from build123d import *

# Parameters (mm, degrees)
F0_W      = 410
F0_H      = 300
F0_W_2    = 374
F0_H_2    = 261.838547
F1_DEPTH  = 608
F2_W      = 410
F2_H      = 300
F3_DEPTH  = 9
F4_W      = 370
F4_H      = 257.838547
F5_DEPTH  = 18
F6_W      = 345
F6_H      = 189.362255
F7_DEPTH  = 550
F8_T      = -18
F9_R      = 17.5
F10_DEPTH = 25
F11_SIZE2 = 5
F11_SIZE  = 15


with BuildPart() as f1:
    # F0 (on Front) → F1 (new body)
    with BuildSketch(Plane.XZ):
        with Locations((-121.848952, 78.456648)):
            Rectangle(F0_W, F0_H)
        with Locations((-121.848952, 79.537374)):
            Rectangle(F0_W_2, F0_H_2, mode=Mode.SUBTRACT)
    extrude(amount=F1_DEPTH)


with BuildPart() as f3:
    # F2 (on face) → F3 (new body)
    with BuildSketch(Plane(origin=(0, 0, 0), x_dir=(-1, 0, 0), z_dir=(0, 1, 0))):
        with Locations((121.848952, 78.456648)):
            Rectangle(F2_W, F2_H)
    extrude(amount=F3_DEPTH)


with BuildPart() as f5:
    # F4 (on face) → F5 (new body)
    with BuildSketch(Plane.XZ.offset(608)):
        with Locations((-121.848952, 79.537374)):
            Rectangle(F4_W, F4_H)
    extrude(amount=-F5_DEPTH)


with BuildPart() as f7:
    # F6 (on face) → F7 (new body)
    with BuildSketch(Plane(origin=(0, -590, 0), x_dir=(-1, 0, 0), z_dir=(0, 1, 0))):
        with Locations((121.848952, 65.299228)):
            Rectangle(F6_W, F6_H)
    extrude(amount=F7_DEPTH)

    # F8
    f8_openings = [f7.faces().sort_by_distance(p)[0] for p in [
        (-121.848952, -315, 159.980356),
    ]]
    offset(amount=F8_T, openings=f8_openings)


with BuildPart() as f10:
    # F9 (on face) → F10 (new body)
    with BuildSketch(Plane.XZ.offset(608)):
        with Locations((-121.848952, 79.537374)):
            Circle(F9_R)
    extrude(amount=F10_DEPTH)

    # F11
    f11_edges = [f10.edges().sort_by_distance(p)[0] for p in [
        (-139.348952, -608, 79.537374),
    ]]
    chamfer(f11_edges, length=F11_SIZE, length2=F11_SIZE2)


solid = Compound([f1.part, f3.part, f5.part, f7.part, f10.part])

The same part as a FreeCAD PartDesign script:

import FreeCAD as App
import Part
import Sketcher
from FreeCAD import Vector


def edges_at(feature, points):
    """Names of the edges that pass closest to the given points."""
    edges = feature.Shape.Edges
    near = lambda p: min(range(len(edges)), key=lambda i: edges[i].distToShape(Part.Vertex(*p))[0])
    return sorted({f"Edge{near(p) + 1}" for p in points})


def faces_at(feature, points):
    """Names of the faces that lie closest to the given points."""
    faces = feature.Shape.Faces
    near = lambda p: min(range(len(faces)), key=lambda i: faces[i].distToShape(Part.Vertex(*p))[0])
    return sorted({f"Face{near(p) + 1}" for p in points})

doc = App.newDocument("Part")
body = doc.addObject("PartDesign::Body", "Body")

# Sketch on XZ plane
sketch1 = body.newObject("Sketcher::SketchObject", "Sketch")
sketch1.AttachmentSupport = (doc.getObject("XZ_Plane"), [""])
sketch1.MapMode = "FlatFace"
sketch1.addGeometry([
    Part.LineSegment(Vector(-327, 228, 0), Vector(-327, -72, 0)),  # 0
    Part.LineSegment(Vector(-327, -72, 0), Vector(83, -72, 0)),  # 1
    Part.LineSegment(Vector(83, -72, 0), Vector(83, 228, 0)),  # 2
    Part.LineSegment(Vector(83, 228, 0), Vector(-327, 228, 0)),  # 3
    Part.LineSegment(Vector(65, -51, 0), Vector(-309, -51, 0)),  # 4
    Part.LineSegment(Vector(-309, -51, 0), Vector(-309, 210, 0)),  # 5
    Part.LineSegment(Vector(-309, 210, 0), Vector(65, 210, 0)),  # 6
    Part.LineSegment(Vector(65, 210, 0), Vector(65, -51, 0)),  # 7
], False)
sketch1.addConstraint([
    Sketcher.Constraint("Coincident", 0, 2, 1, 1),
    Sketcher.Constraint("Coincident", 1, 2, 2, 1),
    Sketcher.Constraint("Coincident", 2, 2, 3, 1),
    Sketcher.Constraint("Coincident", 3, 2, 0, 1),
    Sketcher.Constraint("Coincident", 4, 2, 5, 1),
    Sketcher.Constraint("Coincident", 5, 2, 6, 1),
    Sketcher.Constraint("Coincident", 6, 2, 7, 1),
    Sketcher.Constraint("Coincident", 7, 2, 4, 1),
    Sketcher.Constraint("Vertical", 0),
    Sketcher.Constraint("Horizontal", 1),
    Sketcher.Constraint("Vertical", 2),
    Sketcher.Constraint("Horizontal", 3),
    Sketcher.Constraint("Horizontal", 4),
    Sketcher.Constraint("Vertical", 5),
    Sketcher.Constraint("Horizontal", 6),
    Sketcher.Constraint("Vertical", 7),
    Sketcher.Constraint("DistanceX", 1, 1, 1, 2, 410.0),
    Sketcher.Constraint("DistanceX", 4, 2, 4, 1, 374.0),
    Sketcher.Constraint("DistanceY", 0, 2, 0, 1, 300.0),
    Sketcher.Constraint("DistanceX", 0, 2, 4, 2, 18.0),
    Sketcher.Constraint("DistanceY", 5, 2, 3, 2, 18.0),
    Sketcher.Constraint("DistanceY", 4, 2, -1, 1, 51.3819),
    Sketcher.Constraint("DistanceY", 5, 1, 5, 2, 261.838547),
    Sketcher.Constraint("DistanceX", 0, 2, -1, 1, 326.848952),
])
pad1 = body.newObject("PartDesign::Pad", "Pad")
pad1.Profile = sketch1
pad1.Length = 608
body2 = doc.addObject("PartDesign::Body", "Body001")

# Sketch on XZ plane
sketch2 = body2.newObject("Sketcher::SketchObject", "Sketch001")
sketch2.AttachmentSupport = (doc.getObject("XZ_Plane001"), [""])
sketch2.MapMode = "FlatFace"
sketch2.addGeometry([
    Part.LineSegment(Vector(83, 228, 0), Vector(83, -72, 0)),
    Part.LineSegment(Vector(83, -72, 0), Vector(-327, -72, 0)),
    Part.LineSegment(Vector(-327, -72, 0), Vector(-327, 228, 0)),
    Part.LineSegment(Vector(-327, 228, 0), Vector(83, 228, 0)),
], False)
sketch2.addConstraint([
    Sketcher.Constraint("Coincident", 0, 2, 1, 1),
    Sketcher.Constraint("Coincident", 1, 2, 2, 1),
    Sketcher.Constraint("Coincident", 2, 2, 3, 1),
    Sketcher.Constraint("Coincident", 3, 2, 0, 1),
    Sketcher.Constraint("Vertical", 0),
    Sketcher.Constraint("Horizontal", 1),
    Sketcher.Constraint("Vertical", 2),
    Sketcher.Constraint("Horizontal", 3),
    Sketcher.Constraint("DistanceX", 1, 2, 1, 1, 410.0),
    Sketcher.Constraint("DistanceY", 0, 2, 0, 1, 300.0),
    Sketcher.Constraint("DistanceX", -1, 1, 0, 2, 83.151048),
    Sketcher.Constraint("DistanceY", 0, 2, -1, 1, 71.543352),
])
pad2 = body2.newObject("PartDesign::Pad", "Pad001")
pad2.Profile = sketch2
pad2.Length = 9
pad2.Reversed = True
body3 = doc.addObject("PartDesign::Body", "Body002")

# Sketch on XZ plane
sketch3 = body3.newObject("Sketcher::SketchObject", "Sketch002")
sketch3.AttachmentSupport = (doc.getObject("XZ_Plane002"), [""])
sketch3.MapMode = "FlatFace"
sketch3.AttachmentOffset = App.Placement(Vector(0, 0, 608), App.Rotation())
sketch3.addGeometry([
    Part.LineSegment(Vector(-307, 208, 0), Vector(-307, -49, 0)),
    Part.LineSegment(Vector(-307, -49, 0), Vector(63, -49, 0)),
    Part.LineSegment(Vector(63, -49, 0), Vector(63, 208, 0)),
    Part.LineSegment(Vector(63, 208, 0), Vector(-307, 208, 0)),
], False)
sketch3.addConstraint([
    Sketcher.Constraint("Coincident", 0, 2, 1, 1),
    Sketcher.Constraint("Coincident", 1, 2, 2, 1),
    Sketcher.Constraint("Coincident", 2, 2, 3, 1),
    Sketcher.Constraint("Coincident", 3, 2, 0, 1),
    Sketcher.Constraint("Vertical", 0),
    Sketcher.Constraint("Horizontal", 1),
    Sketcher.Constraint("Vertical", 2),
    Sketcher.Constraint("Horizontal", 3),
    Sketcher.Constraint("DistanceX", 1, 1, 1, 2, 370.0),
    Sketcher.Constraint("DistanceY", 0, 2, -1, 1, 49.3819),
    Sketcher.Constraint("DistanceY", 0, 2, 0, 1, 257.838547),
    Sketcher.Constraint("DistanceX", 0, 2, -1, 1, 306.848952),
])
pad3 = body3.newObject("PartDesign::Pad", "Pad002")
pad3.Profile = sketch3
pad3.Length = 18
pad3.Reversed = True
body4 = doc.addObject("PartDesign::Body", "Body003")

# Sketch on XZ plane
sketch4 = body4.newObject("Sketcher::SketchObject", "Sketch003")
sketch4.AttachmentSupport = (doc.getObject("XZ_Plane003"), [""])
sketch4.MapMode = "FlatFace"
sketch4.AttachmentOffset = App.Placement(Vector(0, 0, 590), App.Rotation())
sketch4.addGeometry([
    Part.LineSegment(Vector(51, 160, 0), Vector(51, -29, 0)),
    Part.LineSegment(Vector(51, -29, 0), Vector(-294, -29, 0)),
    Part.LineSegment(Vector(-294, -29, 0), Vector(-294, 160, 0)),
    Part.LineSegment(Vector(-294, 160, 0), Vector(51, 160, 0)),
], False)
sketch4.addConstraint([
    Sketcher.Constraint("Coincident", 0, 2, 1, 1),
    Sketcher.Constraint("Coincident", 1, 2, 2, 1),
    Sketcher.Constraint("Coincident", 2, 2, 3, 1),
    Sketcher.Constraint("Coincident", 3, 2, 0, 1),
    Sketcher.Constraint("Vertical", 0),
    Sketcher.Constraint("Horizontal", 1),
    Sketcher.Constraint("Vertical", 2),
    Sketcher.Constraint("Horizontal", 3),
    Sketcher.Constraint("DistanceX", 1, 2, 1, 1, 345.0),
    Sketcher.Constraint("DistanceY", 0, 2, -1, 1, 29.381899),
    Sketcher.Constraint("DistanceY", 0, 2, 0, 1, 189.362255),
    Sketcher.Constraint("DistanceX", -1, 1, 0, 2, 50.651048),
])
pad4 = body4.newObject("PartDesign::Pad", "Pad003")
pad4.Profile = sketch4
pad4.Length = 550
pad4.Reversed = True
doc.recompute()

thickness = body4.newObject("PartDesign::Thickness", "Thickness")
thickness.Base = (pad4, faces_at(pad4, [(-121.849, -315, 159.98)]))
thickness.Value = 18
thickness.Reversed = True
thickness.Join = "Arc"
body5 = doc.addObject("PartDesign::Body", "Body004")

# Sketch on XZ plane
sketch5 = body5.newObject("Sketcher::SketchObject", "Sketch004")
sketch5.AttachmentSupport = (doc.getObject("XZ_Plane004"), [""])
sketch5.MapMode = "FlatFace"
sketch5.AttachmentOffset = App.Placement(Vector(0, 0, 608), App.Rotation())
sketch5.addGeometry(Part.Circle(Vector(-122, 80, 0), Vector(0, 0, 1), 18), False)
sketch5.addConstraint([
    Sketcher.Constraint("Diameter", 0, 35.0),
    Sketcher.Constraint("DistanceX", 0, 3, -1, 1, 121.848952),
    Sketcher.Constraint("DistanceY", -1, 1, 0, 3, 79.537374),
])
pad5 = body5.newObject("PartDesign::Pad", "Pad004")
pad5.Profile = sketch5
pad5.Length = 25
doc.recompute()

chamfer = body5.newObject("PartDesign::Chamfer", "Chamfer")
chamfer.Base = (pad5, edges_at(pad5, [(-139.349, -608, 79.537)]))
chamfer.ChamferType = "Two distances"
chamfer.Size = 15
chamfer.Size2 = 5

doc.recompute()
